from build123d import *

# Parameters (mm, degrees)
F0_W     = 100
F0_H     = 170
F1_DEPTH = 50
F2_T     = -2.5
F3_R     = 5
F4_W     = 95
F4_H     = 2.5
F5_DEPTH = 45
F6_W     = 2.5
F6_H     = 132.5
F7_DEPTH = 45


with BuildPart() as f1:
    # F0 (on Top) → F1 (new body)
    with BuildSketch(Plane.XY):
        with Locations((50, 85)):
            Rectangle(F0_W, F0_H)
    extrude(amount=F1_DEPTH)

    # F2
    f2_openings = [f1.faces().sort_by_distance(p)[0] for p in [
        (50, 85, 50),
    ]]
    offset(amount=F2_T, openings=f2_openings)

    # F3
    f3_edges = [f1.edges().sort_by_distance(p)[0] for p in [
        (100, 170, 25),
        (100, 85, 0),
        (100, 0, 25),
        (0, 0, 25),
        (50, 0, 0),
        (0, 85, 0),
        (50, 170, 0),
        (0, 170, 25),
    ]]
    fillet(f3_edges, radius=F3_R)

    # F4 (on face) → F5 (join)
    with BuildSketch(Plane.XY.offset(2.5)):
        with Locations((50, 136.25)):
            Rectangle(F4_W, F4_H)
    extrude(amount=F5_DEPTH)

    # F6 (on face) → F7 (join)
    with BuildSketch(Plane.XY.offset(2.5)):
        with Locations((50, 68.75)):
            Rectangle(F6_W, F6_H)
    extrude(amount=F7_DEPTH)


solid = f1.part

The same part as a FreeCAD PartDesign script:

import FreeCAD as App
import Part
import Sketcher

V = App.Vector


def edges_at(feature, points):
    """Names of the edges that pass closest to the given points."""
    edges = feature.Shape.Edges
    near = lambda p: min(range(len(edges)), key=lambda i: edges[i].distToShape(Part.Vertex(*p))[0])
    return sorted({f"Edge{near(p) + 1}" for p in points})


def faces_at(feature, points):
    """Names of the faces that lie closest to the given points."""
    faces = feature.Shape.Faces
    near = lambda p: min(range(len(faces)), key=lambda i: faces[i].distToShape(Part.Vertex(*p))[0])
    return sorted({f"Face{near(p) + 1}" for p in points})


def add_polygon(sketch, points):
    """Adds a closed chain of lines whose ends are joined by coincident constraints."""
    first, n = sketch.GeometryCount, len(points)
    for a, b in zip(points, points[1:] + points[:1]):
        sketch.addGeometry(Part.LineSegment(App.Vector(*a, 0), App.Vector(*b, 0)), False)
    for i in range(n):
        sketch.addConstraint(Sketcher.Constraint("Coincident", first + i, 2, first + (i + 1) % n, 1))

doc = App.newDocument("Part")
body = doc.addObject("PartDesign::Body", "Body")

# Sketch on XY plane
sketch1 = body.newObject("Sketcher::SketchObject", "Sketch")
sketch1.AttachmentSupport = (doc.getObject("XY_Plane"), [""])
sketch1.MapMode = "FlatFace"
add_polygon(sketch1, [(0, 170), (0, 0), (100, 0), (100, 170)])  # lines 0-3
sketch1.addConstraint([
    Sketcher.Constraint("Vertical", 0),
    Sketcher.Constraint("Horizontal", 1),
    Sketcher.Constraint("Vertical", 2),
    Sketcher.Constraint("Horizontal", 3),
    Sketcher.Constraint("Coincident", 0, 2, -1, 1),
    Sketcher.Constraint("DistanceX", 1, 1, 1, 2, 100.0),
    Sketcher.Constraint("DistanceY", 0, 2, 0, 1, 170.0),
])
pad1 = body.newObject("PartDesign::Pad", "Pad")
pad1.Profile = sketch1
pad1.Length = 50
doc.recompute()

thickness = body.newObject("PartDesign::Thickness", "Thickness")
thickness.Base = (pad1, faces_at(pad1, [(50, 85, 50)]))
thickness.Value = 2.5
thickness.Reversed = True
thickness.Join = "Arc"
doc.recompute()

fillet = body.newObject("PartDesign::Fillet", "Fillet")
fillet.Base = (thickness, edges_at(thickness, [
    (100, 170, 25),
    (100, 85, 0),
    (100, 0, 25),
    (0, 0, 25),
    (50, 0, 0),
    (0, 85, 0),
    (50, 170, 0),
    (0, 170, 25),
]))
fillet.Radius = 5

# Sketch on XY plane
sketch2 = body.newObject("Sketcher::SketchObject", "Sketch001")
sketch2.AttachmentSupport = (doc.getObject("XY_Plane"), [""])
sketch2.MapMode = "FlatFace"
sketch2.AttachmentOffset = App.Placement(V(0, 0, 2.5), App.Rotation())
add_polygon(sketch2, [(2.5, 137.5), (2.5, 135), (97.5, 135), (97.5, 137.5)])  # lines 0-3
sketch2.addConstraint([
    Sketcher.Constraint("Vertical", 0),
    Sketcher.Constraint("Horizontal", 1),
    Sketcher.Constraint("Vertical", 2),
    Sketcher.Constraint("Horizontal", 3),
    Sketcher.Constraint("DistanceX", 1, 1, 1, 2, 95.0),
    Sketcher.Constraint("DistanceY", 0, 2, 0, 1, 2.5),
    Sketcher.Constraint("DistanceY", -1, 1, 0, 2, 135.0),
    Sketcher.Constraint("DistanceX", -1, 1, 0, 2, 2.5),
])
pad2 = body.newObject("PartDesign::Pad", "Pad001")
pad2.Profile = sketch2
pad2.Length = 45

# Sketch on XY plane
sketch3 = body.newObject("Sketcher::SketchObject", "Sketch002")
sketch3.AttachmentSupport = (doc.getObject("XY_Plane"), [""])
sketch3.MapMode = "FlatFace"
sketch3.AttachmentOffset = App.Placement(V(0, 0, 2.5), App.Rotation())
add_polygon(sketch3, [(48.8, 135), (48.8, 2.5), (51.2, 2.5), (51.2, 135)])  # lines 0-3
sketch3.addConstraint([
    Sketcher.Constraint("Vertical", 0),
    Sketcher.Constraint("Horizontal", 1),
    Sketcher.Constraint("Vertical", 2),
    Sketcher.Constraint("Horizontal", 3),
    Sketcher.Constraint("DistanceX", 1, 1, 1, 2, 2.5),
    Sketcher.Constraint("DistanceY", 0, 2, 0, 1, 132.5),
    Sketcher.Constraint("DistanceY", -1, 1, 2, 2, 135.0),
    Sketcher.Constraint("DistanceX", -1, 1, 0, 2, 48.75),
])
pad3 = body.newObject("PartDesign::Pad", "Pad002")
pad3.Profile = sketch3
pad3.Length = 45

doc.recompute()
